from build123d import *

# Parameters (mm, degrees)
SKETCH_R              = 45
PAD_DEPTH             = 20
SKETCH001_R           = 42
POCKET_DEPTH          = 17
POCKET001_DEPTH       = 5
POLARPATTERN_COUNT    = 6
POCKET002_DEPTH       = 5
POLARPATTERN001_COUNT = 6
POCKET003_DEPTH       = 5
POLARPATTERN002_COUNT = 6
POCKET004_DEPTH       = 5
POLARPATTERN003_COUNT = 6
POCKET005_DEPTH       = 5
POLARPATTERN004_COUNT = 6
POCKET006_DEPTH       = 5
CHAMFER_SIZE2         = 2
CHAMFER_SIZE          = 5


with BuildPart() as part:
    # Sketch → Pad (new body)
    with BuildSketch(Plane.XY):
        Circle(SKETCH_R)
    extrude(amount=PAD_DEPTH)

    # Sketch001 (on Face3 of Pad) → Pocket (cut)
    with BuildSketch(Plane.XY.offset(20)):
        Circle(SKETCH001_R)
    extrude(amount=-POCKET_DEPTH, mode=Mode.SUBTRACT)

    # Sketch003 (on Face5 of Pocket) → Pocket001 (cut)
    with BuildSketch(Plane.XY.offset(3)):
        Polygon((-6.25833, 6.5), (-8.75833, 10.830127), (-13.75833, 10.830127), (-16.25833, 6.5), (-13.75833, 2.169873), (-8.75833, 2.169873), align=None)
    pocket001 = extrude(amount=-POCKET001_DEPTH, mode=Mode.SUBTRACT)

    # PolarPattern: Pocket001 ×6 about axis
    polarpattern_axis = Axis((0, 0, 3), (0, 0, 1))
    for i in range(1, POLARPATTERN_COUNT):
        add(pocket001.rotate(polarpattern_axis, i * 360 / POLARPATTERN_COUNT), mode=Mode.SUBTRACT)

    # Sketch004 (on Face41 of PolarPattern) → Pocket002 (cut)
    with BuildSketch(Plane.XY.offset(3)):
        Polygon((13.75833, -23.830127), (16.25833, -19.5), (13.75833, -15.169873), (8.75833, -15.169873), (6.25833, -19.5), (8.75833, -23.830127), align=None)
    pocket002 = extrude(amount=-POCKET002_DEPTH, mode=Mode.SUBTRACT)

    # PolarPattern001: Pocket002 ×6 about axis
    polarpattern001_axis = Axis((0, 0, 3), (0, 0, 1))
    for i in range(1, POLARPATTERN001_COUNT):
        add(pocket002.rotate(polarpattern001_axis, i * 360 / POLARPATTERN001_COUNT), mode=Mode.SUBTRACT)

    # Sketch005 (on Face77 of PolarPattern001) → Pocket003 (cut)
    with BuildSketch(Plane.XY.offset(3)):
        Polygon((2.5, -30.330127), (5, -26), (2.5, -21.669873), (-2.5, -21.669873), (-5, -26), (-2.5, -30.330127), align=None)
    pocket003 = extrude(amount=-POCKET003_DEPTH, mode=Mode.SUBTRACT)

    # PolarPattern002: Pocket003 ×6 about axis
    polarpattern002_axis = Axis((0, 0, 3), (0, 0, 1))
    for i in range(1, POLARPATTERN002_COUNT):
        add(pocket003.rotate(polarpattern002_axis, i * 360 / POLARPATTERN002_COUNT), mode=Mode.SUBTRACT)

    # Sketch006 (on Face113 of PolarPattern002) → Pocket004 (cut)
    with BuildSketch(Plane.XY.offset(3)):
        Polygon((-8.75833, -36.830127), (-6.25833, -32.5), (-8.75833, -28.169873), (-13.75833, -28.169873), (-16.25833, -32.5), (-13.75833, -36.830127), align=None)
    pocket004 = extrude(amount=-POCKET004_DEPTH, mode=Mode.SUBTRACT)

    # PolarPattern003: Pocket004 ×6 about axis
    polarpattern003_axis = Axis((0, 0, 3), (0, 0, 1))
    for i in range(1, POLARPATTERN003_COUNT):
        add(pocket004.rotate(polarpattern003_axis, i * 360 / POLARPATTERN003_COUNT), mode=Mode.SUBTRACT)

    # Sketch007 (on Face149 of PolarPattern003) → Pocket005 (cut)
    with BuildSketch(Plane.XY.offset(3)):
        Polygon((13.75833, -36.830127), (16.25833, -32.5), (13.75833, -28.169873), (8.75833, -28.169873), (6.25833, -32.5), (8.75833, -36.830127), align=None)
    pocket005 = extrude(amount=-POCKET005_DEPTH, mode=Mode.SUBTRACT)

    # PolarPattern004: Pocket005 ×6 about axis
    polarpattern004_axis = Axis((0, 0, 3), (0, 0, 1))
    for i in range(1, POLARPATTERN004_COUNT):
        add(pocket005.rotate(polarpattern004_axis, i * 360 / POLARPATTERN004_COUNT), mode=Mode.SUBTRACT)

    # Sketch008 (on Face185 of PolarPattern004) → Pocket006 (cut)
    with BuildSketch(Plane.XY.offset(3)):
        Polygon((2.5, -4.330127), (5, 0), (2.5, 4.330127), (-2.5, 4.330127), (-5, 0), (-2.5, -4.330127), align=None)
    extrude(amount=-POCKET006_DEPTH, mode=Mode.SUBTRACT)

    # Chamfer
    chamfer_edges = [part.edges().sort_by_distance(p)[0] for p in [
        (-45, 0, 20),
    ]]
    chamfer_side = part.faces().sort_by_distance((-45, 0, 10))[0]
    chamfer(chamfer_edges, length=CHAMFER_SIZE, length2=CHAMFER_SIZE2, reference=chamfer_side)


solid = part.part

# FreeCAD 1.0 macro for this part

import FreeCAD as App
import Part
import Sketcher
Q = App.Units.Quantity


def edges_at(feature, points):
    """Names of the edges that pass closest to the given points."""
    edges = feature.Shape.Edges
    near = lambda p: min(range(len(edges)), key=lambda i: edges[i].distToShape(Part.Vertex(*p))[0])
    return sorted({f"Edge{near(p) + 1}" for p in points})


def add_polygon(sketch, points):
    """Adds a closed chain of lines whose ends are joined by coincident constraints."""
    first, n = sketch.GeometryCount, len(points)
    for a, b in zip(points, points[1:] + points[:1]):
        sketch.addGeometry(Part.LineSegment(App.Vector(*a, 0), App.Vector(*b, 0)), False)
    for i in range(n):
        sketch.addConstraint(Sketcher.Constraint("Coincident", first + i, 2, first + (i + 1) % n, 1))

doc = App.newDocument("Part")
body = doc.addObject("PartDesign::Body", "Body")

sketch1 = body.newObject("Sketcher::SketchObject", "Sketch")
sketch1.AttachmentSupport = (doc.getObject("XY_Plane"), [""])
sketch1.MapMode = "FlatFace"
sketch1.addGeometry(Part.Circle(App.Vector(0, 0, 0), App.Vector(0, 0, 1), 45), False)
sketch1.addConstraint([
    Sketcher.Constraint("Coincident", 0, 3, -1, 1),
    Sketcher.Constraint("Diameter", 0, Q("90 mm")),
])
pad1 = body.newObject("PartDesign::Pad", "Pad")
pad1.Profile = sketch1
pad1.Length = 20

sketch2 = body.newObject("Sketcher::SketchObject", "Sketch001")
sketch2.AttachmentSupport = (doc.getObject("XY_Plane"), [""])
sketch2.MapMode = "FlatFace"
sketch2.AttachmentOffset = App.Placement(App.Vector(0, 0, 20), App.Rotation())
sketch2.addGeometry(Part.Circle(App.Vector(0, 0, 0), App.Vector(0, 0, 1), 42), False)
sketch2.addConstraint([
    Sketcher.Constraint("Coincident", 0, 3, -1, 1),
    Sketcher.Constraint("Diameter", 0, Q("84 mm")),
])
pocket1 = body.newObject("PartDesign::Pocket", "Pocket")
pocket1.Profile = sketch2
pocket1.Length = 17

sketch3 = body.newObject("Sketcher::SketchObject", "Sketch002")
sketch3.AttachmentSupport = (doc.getObject("XY_Plane"), [""])
sketch3.MapMode = "FlatFace"
sketch3.AttachmentOffset = App.Placement(App.Vector(0, 0, 3), App.Rotation())
add_polygon(sketch3, [(-6.3, 6.5), (-8.8, 10.8), (-13.8, 10.8), (-16.3, 6.5), (-13.8, 2.2), (-8.8, 2.2)])
sketch3.addConstraint([
    Sketcher.Constraint("Horizontal", 1),
    Sketcher.Constraint("Horizontal", 4),
    Sketcher.Constraint("Parallel", 0, 3),
    Sketcher.Constraint("Parallel", 2, 5),
    Sketcher.Constraint("Horizontal", 2, 2, 5, 2),
    Sketcher.Constraint("Vertical", 1, 2, 3, 2),
    Sketcher.Constraint("Vertical", 0, 2, 4, 2),
    Sketcher.Constraint("DistanceX", 1, 2, 1, 1, Q("5 mm")),
    Sketcher.Constraint("Angle", 0, Q("120 deg")),
    Sketcher.Constraint("Distance", 0, Q("5 mm")),
    Sketcher.Constraint("DistanceY", -1, 1, 2, 2, Q("6.5 mm")),
    Sketcher.Constraint("DistanceX", 0, 2, -1, 1, Q("8.75833 mm")),
])
pocket2 = body.newObject("PartDesign::Pocket", "Pocket001")
pocket2.Profile = sketch3
pocket2.Length = 5
doc.recompute()

polarpattern = body.newObject("PartDesign::PolarPattern", "PolarPattern")
polarpattern.Originals = [pocket2]
polarpattern.Axis = (doc.getObject("Z_Axis"), [""])
polarpattern.Angle = 360
polarpattern.Occurrences = 6
body.Tip = polarpattern

sketch4 = body.newObject("Sketcher::SketchObject", "Sketch003")
sketch4.AttachmentSupport = (doc.getObject("XY_Plane"), [""])
sketch4.MapMode = "FlatFace"
sketch4.AttachmentOffset = App.Placement(App.Vector(0, 0, 3), App.Rotation())
add_polygon(sketch4, [(13.8, -23.8), (16.3, -19.5), (13.8, -15.2), (8.8, -15.2), (6.3, -19.5), (8.8, -23.8)])
sketch4.addConstraint([
    Sketcher.Constraint("Horizontal", 2),
    Sketcher.Constraint("Horizontal", 5),
    Sketcher.Constraint("Parallel", 0, 3),
    Sketcher.Constraint("Parallel", 1, 4),
    Sketcher.Constraint("Horizontal", 0, 2, 3, 2),
    Sketcher.Constraint("Vertical", 2, 2, 4, 2),
    Sketcher.Constraint("Vertical", 1, 2, 5, 2),
    Sketcher.Constraint("DistanceX", 2, 2, 2, 1, Q("5 mm")),
    Sketcher.Constraint("Angle", 0, Q("60 deg")),
    Sketcher.Constraint("Distance", 0, Q("5 mm")),
    Sketcher.Constraint("DistanceY", 0, 2, -1, 1, Q("19.5 mm")),
    Sketcher.Constraint("DistanceX", -1, 1, 0, 2, Q("16.25833 mm")),
])
pocket3 = body.newObject("PartDesign::Pocket", "Pocket002")
pocket3.Profile = sketch4
pocket3.Length = 5
doc.recompute()

polarpattern2 = body.newObject("PartDesign::PolarPattern", "PolarPattern001")
polarpattern2.Originals = [pocket3]
polarpattern2.Axis = (doc.getObject("Z_Axis"), [""])
polarpattern2.Angle = 360
polarpattern2.Occurrences = 6
body.Tip = polarpattern2

sketch5 = body.newObject("Sketcher::SketchObject", "Sketch004")
sketch5.AttachmentSupport = (doc.getObject("XY_Plane"), [""])
sketch5.MapMode = "FlatFace"
sketch5.AttachmentOffset = App.Placement(App.Vector(0, 0, 3), App.Rotation())
add_polygon(sketch5, [(2.5, -30.3), (5, -26), (2.5, -21.7), (-2.5, -21.7), (-5, -26), (-2.5, -30.3)])
sketch5.addConstraint([
    Sketcher.Constraint("Horizontal", 2),
    Sketcher.Constraint("Horizontal", 5),
    Sketcher.Constraint("Symmetric", 0, 2, 3, 2, -2),
    Sketcher.Constraint("Parallel", 0, 3),
    Sketcher.Constraint("Parallel", 1, 4),
    Sketcher.Constraint("Vertical", 2, 2, 4, 2),
    Sketcher.Constraint("Vertical", 1, 2, 5, 2),
    Sketcher.Constraint("DistanceX", 2, 2, 2, 1, Q("5 mm")),
    Sketcher.Constraint("Angle", 0, Q("60 deg")),
    Sketcher.Constraint("Distance", 0, Q("5 mm")),
    Sketcher.Constraint("DistanceY", 0, 2, -1, 1, Q("26 mm")),
])
pocket4 = body.newObject("PartDesign::Pocket", "Pocket003")
pocket4.Profile = sketch5
pocket4.Length = 5
doc.recompute()

polarpattern3 = body.newObject("PartDesign::PolarPattern", "PolarPattern002")
polarpattern3.Originals = [pocket4]
polarpattern3.Axis = (doc.getObject("Z_Axis"), [""])
polarpattern3.Angle = 360
polarpattern3.Occurrences = 6
body.Tip = polarpattern3

sketch6 = body.newObject("Sketcher::SketchObject", "Sketch005")
sketch6.AttachmentSupport = (doc.getObject("XY_Plane"), [""])
sketch6.MapMode = "FlatFace"
sketch6.AttachmentOffset = App.Placement(App.Vector(0, 0, 3), App.Rotation())
add_polygon(sketch6, [(-8.8, -36.8), (-6.3, -32.5), (-8.8, -28.2), (-13.8, -28.2), (-16.3, -32.5), (-13.8, -36.8)])
sketch6.addConstraint([
    Sketcher.Constraint("Horizontal", 2),
    Sketcher.Constraint("Horizontal", 5),
    Sketcher.Constraint("Parallel", 0, 3),
    Sketcher.Constraint("Parallel", 1, 4),
    Sketcher.Constraint("Horizontal", 0, 2, 3, 2),
    Sketcher.Constraint("Vertical", 2, 2, 4, 2),
    Sketcher.Constraint("Vertical", 1, 2, 5, 2),
    Sketcher.Constraint("DistanceX", 2, 2, 2, 1, Q("5 mm")),
    Sketcher.Constraint("Angle", 0, Q("60 deg")),
    Sketcher.Constraint("Distance", 0, Q("5 mm")),
    Sketcher.Constraint("DistanceY", 0, 2, -1, 1, Q("32.5 mm")),
    Sketcher.Constraint("DistanceX", 0, 2, -1, 1, Q("6.25833 mm")),
])
pocket5 = body.newObject("PartDesign::Pocket", "Pocket004")
pocket5.Profile = sketch6
pocket5.Length = 5
doc.recompute()

polarpattern4 = body.newObject("PartDesign::PolarPattern", "PolarPattern003")
polarpattern4.Originals = [pocket5]
polarpattern4.Axis = (doc.getObject("Z_Axis"), [""])
polarpattern4.Angle = 360
polarpattern4.Occurrences = 6
body.Tip = polarpattern4

sketch7 = body.newObject("Sketcher::SketchObject", "Sketch006")
sketch7.AttachmentSupport = (doc.getObject("XY_Plane"), [""])
sketch7.MapMode = "FlatFace"
sketch7.AttachmentOffset = App.Placement(App.Vector(0, 0, 3), App.Rotation())
add_polygon(sketch7, [(13.8, -36.8), (16.3, -32.5), (13.8, -28.2), (8.8, -28.2), (6.3, -32.5), (8.8, -36.8)])
sketch7.addConstraint([
    Sketcher.Constraint("Horizontal", 2),
    Sketcher.Constraint("Horizontal", 5),
    Sketcher.Constraint("Parallel", 0, 3),
    Sketcher.Constraint("Parallel", 1, 4),
    Sketcher.Constraint("Horizontal", 0, 2, 3, 2),
    Sketcher.Constraint("Vertical", 2, 2, 4, 2),
    Sketcher.Constraint("Vertical", 1, 2, 5, 2),
    Sketcher.Constraint("DistanceX", 2, 2, 2, 1, Q("5 mm")),
    Sketcher.Constraint("Angle", 0, Q("60 deg")),
    Sketcher.Constraint("Distance", 0, Q("5 mm")),
    Sketcher.Constraint("DistanceY", 0, 2, -1, 1, Q("32.5 mm")),
    Sketcher.Constraint("DistanceX", -1, 1, 0, 2, Q("16.25833 mm")),
])
pocket6 = body.newObject("PartDesign::Pocket", "Pocket005")
pocket6.Profile = sketch7
pocket6.Length = 5
doc.recompute()

polarpattern5 = body.newObject("PartDesign::PolarPattern", "PolarPattern004")
polarpattern5.Originals = [pocket6]
polarpattern5.Axis = (doc.getObject("Z_Axis"), [""])
polarpattern5.Angle = 360
polarpattern5.Occurrences = 6
body.Tip = polarpattern5

sketch8 = body.newObject("Sketcher::SketchObject", "Sketch007")
sketch8.AttachmentSupport = (doc.getObject("XY_Plane"), [""])
sketch8.MapMode = "FlatFace"
sketch8.AttachmentOffset = App.Placement(App.Vector(0, 0, 3), App.Rotation())
add_polygon(sketch8, [(2.5, -4.3), (5, 0), (2.5, 4.3), (-2.5, 4.3), (-5, 0), (-2.5, -4.3)])
sketch8.addConstraint([
    Sketcher.Constraint("Horizontal", 2),
    Sketcher.Constraint("Horizontal", 5),
    Sketcher.Constraint("Symmetric", 0, 2, 3, 2, -1, 1),
    Sketcher.Constraint("Symmetric", 1, 2, 4, 2, -1, 1),
    Sketcher.Constraint("PointOnObject", 0, 2, -1),
    Sketcher.Constraint("Parallel", 0, 3),
    Sketcher.Constraint("Vertical", 2, 2, 4, 2),
    Sketcher.Constraint("DistanceX", 2, 2, 2, 1, Q("5 mm")),
    Sketcher.Constraint("Angle", 0, Q("60 deg")),
    Sketcher.Constraint("Distance", 0, Q("5 mm")),
])
pocket7 = body.newObject("PartDesign::Pocket", "Pocket006")
pocket7.Profile = sketch8
pocket7.Length = 5
doc.recompute()

chamfer = body.newObject("PartDesign::Chamfer", "Chamfer")
chamfer.Base = (pocket7, edges_at(pocket7, [(-45, 0, 20)]))
chamfer.ChamferType = "Two distances"
chamfer.Size = 5
chamfer.Size2 = 2

doc.recompute()
